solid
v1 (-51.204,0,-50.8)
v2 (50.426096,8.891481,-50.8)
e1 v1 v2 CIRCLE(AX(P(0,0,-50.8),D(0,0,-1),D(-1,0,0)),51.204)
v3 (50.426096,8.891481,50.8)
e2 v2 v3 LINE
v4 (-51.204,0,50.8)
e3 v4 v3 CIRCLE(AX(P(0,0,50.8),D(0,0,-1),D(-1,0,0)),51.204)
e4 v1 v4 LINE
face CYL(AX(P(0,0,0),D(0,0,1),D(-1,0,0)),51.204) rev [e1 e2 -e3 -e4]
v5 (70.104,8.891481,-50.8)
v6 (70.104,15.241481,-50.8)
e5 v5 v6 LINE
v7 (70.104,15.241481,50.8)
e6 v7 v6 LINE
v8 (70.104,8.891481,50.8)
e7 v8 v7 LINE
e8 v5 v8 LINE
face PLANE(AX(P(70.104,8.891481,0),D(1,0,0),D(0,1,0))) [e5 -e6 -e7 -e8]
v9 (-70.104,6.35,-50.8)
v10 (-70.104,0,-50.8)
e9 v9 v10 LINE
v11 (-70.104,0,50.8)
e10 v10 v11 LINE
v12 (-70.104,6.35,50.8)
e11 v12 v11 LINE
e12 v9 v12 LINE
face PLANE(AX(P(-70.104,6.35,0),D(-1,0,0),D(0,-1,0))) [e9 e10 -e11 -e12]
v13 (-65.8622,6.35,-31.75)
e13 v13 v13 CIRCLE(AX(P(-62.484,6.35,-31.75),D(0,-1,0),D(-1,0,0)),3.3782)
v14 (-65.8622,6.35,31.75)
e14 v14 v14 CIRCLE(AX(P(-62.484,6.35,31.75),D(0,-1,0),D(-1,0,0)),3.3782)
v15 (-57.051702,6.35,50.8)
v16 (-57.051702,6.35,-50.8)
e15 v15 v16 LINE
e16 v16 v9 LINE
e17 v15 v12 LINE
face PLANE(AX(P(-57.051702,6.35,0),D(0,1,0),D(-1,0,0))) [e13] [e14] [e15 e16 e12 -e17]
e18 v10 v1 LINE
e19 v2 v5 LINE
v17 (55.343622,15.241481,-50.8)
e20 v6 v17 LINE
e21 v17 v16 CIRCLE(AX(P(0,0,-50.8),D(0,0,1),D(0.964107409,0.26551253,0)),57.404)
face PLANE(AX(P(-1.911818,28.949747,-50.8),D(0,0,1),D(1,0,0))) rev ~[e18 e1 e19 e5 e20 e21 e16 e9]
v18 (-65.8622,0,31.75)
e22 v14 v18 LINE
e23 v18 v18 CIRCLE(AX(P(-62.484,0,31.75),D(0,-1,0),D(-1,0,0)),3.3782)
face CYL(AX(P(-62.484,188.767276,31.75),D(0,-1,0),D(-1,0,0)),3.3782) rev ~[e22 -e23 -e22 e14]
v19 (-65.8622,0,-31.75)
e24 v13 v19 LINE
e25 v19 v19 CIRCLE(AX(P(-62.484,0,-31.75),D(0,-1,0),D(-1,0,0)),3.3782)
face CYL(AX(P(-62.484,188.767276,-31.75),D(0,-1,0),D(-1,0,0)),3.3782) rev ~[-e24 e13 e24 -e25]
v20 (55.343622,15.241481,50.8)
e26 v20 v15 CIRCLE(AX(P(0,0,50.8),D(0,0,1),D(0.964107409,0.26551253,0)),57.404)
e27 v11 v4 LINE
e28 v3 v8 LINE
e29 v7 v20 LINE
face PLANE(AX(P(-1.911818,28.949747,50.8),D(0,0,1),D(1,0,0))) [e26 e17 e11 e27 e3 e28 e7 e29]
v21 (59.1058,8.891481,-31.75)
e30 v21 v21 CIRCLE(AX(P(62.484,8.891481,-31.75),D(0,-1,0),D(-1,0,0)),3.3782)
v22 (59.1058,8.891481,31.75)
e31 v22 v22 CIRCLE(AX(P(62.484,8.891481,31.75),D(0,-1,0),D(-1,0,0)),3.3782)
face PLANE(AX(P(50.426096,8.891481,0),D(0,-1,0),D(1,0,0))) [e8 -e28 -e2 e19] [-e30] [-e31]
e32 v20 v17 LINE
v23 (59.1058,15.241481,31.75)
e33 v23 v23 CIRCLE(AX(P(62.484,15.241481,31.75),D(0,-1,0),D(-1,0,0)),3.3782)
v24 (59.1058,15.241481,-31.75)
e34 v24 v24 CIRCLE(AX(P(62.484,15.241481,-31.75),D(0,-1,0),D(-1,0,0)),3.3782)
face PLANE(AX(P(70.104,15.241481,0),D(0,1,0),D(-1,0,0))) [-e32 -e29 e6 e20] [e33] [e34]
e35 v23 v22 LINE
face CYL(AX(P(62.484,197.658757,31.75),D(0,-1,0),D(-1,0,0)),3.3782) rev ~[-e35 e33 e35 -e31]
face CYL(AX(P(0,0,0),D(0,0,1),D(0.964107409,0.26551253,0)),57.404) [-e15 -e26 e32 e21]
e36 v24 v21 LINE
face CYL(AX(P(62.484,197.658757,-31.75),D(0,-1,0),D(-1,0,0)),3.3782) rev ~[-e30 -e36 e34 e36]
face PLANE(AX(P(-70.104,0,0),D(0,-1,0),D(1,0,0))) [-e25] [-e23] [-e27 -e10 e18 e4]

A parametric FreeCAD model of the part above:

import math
import FreeCAD as App
import Part
import Sketcher
from FreeCAD import Vector
Q = App.Units.Quantity

doc = App.newDocument("Part")
body = doc.addObject("PartDesign::Body", "Body")

sketch1 = body.newObject("Sketcher::SketchObject", "Sketch")
sketch1.AttachmentSupport = (doc.getObject("XY_Plane"), [""])
sketch1.MapMode = "FlatFace"
sketch1.addGeometry([
    Part.LineSegment(Vector(-57.051702, 6.35, 0), Vector(-70.104, 6.35, 0)),
    Part.LineSegment(Vector(-70.104, 6.35, 0), Vector(-70.104, 0, 0)),
    Part.LineSegment(Vector(-70.104, 0, 0), Vector(-51.204, 0, 0)),
    Part.ArcOfCircle(Part.Circle(Vector(0, 0, 0), Vector(0, 0, 1), 51.204), math.radians(10), math.radians(180)),
    Part.LineSegment(Vector(50.426096, 8.891481, 0), Vector(70.104, 8.891481, 0)),
    Part.LineSegment(Vector(70.104, 8.891481, 0), Vector(70.104, 15.241481, 0)),
    Part.LineSegment(Vector(70.104, 15.241481, 0), Vector(55.343622, 15.241481, 0)),
    Part.ArcOfCircle(Part.Circle(Vector(0, 0, 0), Vector(0, 0, 1), 57.404), math.radians(15.39741), math.radians(173.648974)),
], False)
sketch1.addConstraint([
    Sketcher.Constraint("Coincident", 0, 2, 1, 1),
    Sketcher.Constraint("Coincident", 1, 2, 2, 1),
    Sketcher.Constraint("Coincident", 2, 2, 3, 2),
    Sketcher.Constraint("Coincident", 3, 1, 4, 1),
    Sketcher.Constraint("Coincident", 4, 2, 5, 1),
    Sketcher.Constraint("Coincident", 5, 2, 6, 1),
    Sketcher.Constraint("Coincident", 6, 2, 7, 1),
    Sketcher.Constraint("Coincident", 7, 2, 0, 1),
    Sketcher.Constraint("Horizontal", 0),
    Sketcher.Constraint("Vertical", 1),
    Sketcher.Constraint("Horizontal", 2),
    Sketcher.Constraint("Horizontal", 4),
    Sketcher.Constraint("Vertical", 5),
    Sketcher.Constraint("Horizontal", 6),
    Sketcher.Constraint("Coincident", 3, 3, -1, 1),
    Sketcher.Constraint("Coincident", 7, 3, -1, 1),
    Sketcher.Constraint("PointOnObject", 1, 2, -1),
    Sketcher.Constraint("Equal", 1, 5),
    Sketcher.Constraint("Radius", 7, Q("2.26 in")),
    Sketcher.Constraint("DistanceY", 1, 2, 1, 1, Q("0.25 in")),
    Sketcher.Constraint("DistanceX", 0, 2, -1, 1, Q("2.76 in")),
    Sketcher.Constraint("DistanceX", -1, 1, 4, 2, Q("2.76 in")),
    Sketcher.Constraint("Radius", 3, 51.204),
    Sketcher.Constraint("DistanceX", 6, 2, 6, 1, 14.760378),
])
pad1 = body.newObject("PartDesign::Pad", "Pad")
pad1.Profile = sketch1
pad1.Length = Q("4 in")
pad1.Midplane = True

sketch2 = body.newObject("Sketcher::SketchObject", "Sketch001")
sketch2.AttachmentSupport = (doc.getObject("XZ_Plane"), [""])
sketch2.MapMode = "FlatFace"
sketch2.AttachmentOffset = App.Placement(Vector(0, 0, -0.25 * 25.4), App.Rotation())
sketch2.addGeometry([
    Part.Circle(Vector(-62.484, 31.75, 0), Vector(0, 0, 1), 3.3782),
    Part.Circle(Vector(-62.484, -31.75, 0), Vector(0, 0, 1), 3.3782),
], False)
sketch2.addConstraint([
    Sketcher.Constraint("Equal", 0, 1),
    Sketcher.Constraint("Symmetric", 0, 3, 1, 3, -1),
    Sketcher.Constraint("Diameter", 0, Q("0.266 in")),
    Sketcher.Constraint("DistanceY", 1, 3, 0, 3, Q("2.5 in")),
    Sketcher.Constraint("DistanceX", 0, 3, -1, 1, Q("2.46 in")),
])
doc.recompute()
hole = body.newObject("PartDesign::Hole", "Hole")
hole.Profile = sketch2
hole.ThreadType = "None"
hole.Diameter = Q("0.266 in")
hole.DepthType = "ThroughAll"
hole.Reversed = True

sketch3 = body.newObject("Sketcher::SketchObject", "Sketch002")
sketch3.AttachmentSupport = (doc.getObject("XZ_Plane"), [""])
sketch3.MapMode = "FlatFace"
sketch3.AttachmentOffset = App.Placement(Vector(0, 0, -15.241481), App.Rotation())
sketch3.addGeometry([
    Part.Circle(Vector(62.484, 31.75, 0), Vector(0, 0, 1), 3.3782),
    Part.Circle(Vector(62.484, -31.75, 0), Vector(0, 0, 1), 3.3782),
], False)
sketch3.addConstraint([
    Sketcher.Constraint("Equal", 0, 1),
    Sketcher.Constraint("Symmetric", 0, 3, 1, 3, -1),
    Sketcher.Constraint("Diameter", 0, Q("0.266 in")),
    Sketcher.Constraint("DistanceY", 1, 3, 0, 3, Q("2.5 in")),
    Sketcher.Constraint("DistanceX", -1, 1, 0, 3, Q("2.46 in")),
])
doc.recompute()
hole2 = body.newObject("PartDesign::Hole", "Hole001")
hole2.Profile = sketch3
hole2.ThreadType = "None"
hole2.Diameter = Q("0.266 in")
hole2.DepthType = "ThroughAll"
hole2.Reversed = True

doc.recompute()
